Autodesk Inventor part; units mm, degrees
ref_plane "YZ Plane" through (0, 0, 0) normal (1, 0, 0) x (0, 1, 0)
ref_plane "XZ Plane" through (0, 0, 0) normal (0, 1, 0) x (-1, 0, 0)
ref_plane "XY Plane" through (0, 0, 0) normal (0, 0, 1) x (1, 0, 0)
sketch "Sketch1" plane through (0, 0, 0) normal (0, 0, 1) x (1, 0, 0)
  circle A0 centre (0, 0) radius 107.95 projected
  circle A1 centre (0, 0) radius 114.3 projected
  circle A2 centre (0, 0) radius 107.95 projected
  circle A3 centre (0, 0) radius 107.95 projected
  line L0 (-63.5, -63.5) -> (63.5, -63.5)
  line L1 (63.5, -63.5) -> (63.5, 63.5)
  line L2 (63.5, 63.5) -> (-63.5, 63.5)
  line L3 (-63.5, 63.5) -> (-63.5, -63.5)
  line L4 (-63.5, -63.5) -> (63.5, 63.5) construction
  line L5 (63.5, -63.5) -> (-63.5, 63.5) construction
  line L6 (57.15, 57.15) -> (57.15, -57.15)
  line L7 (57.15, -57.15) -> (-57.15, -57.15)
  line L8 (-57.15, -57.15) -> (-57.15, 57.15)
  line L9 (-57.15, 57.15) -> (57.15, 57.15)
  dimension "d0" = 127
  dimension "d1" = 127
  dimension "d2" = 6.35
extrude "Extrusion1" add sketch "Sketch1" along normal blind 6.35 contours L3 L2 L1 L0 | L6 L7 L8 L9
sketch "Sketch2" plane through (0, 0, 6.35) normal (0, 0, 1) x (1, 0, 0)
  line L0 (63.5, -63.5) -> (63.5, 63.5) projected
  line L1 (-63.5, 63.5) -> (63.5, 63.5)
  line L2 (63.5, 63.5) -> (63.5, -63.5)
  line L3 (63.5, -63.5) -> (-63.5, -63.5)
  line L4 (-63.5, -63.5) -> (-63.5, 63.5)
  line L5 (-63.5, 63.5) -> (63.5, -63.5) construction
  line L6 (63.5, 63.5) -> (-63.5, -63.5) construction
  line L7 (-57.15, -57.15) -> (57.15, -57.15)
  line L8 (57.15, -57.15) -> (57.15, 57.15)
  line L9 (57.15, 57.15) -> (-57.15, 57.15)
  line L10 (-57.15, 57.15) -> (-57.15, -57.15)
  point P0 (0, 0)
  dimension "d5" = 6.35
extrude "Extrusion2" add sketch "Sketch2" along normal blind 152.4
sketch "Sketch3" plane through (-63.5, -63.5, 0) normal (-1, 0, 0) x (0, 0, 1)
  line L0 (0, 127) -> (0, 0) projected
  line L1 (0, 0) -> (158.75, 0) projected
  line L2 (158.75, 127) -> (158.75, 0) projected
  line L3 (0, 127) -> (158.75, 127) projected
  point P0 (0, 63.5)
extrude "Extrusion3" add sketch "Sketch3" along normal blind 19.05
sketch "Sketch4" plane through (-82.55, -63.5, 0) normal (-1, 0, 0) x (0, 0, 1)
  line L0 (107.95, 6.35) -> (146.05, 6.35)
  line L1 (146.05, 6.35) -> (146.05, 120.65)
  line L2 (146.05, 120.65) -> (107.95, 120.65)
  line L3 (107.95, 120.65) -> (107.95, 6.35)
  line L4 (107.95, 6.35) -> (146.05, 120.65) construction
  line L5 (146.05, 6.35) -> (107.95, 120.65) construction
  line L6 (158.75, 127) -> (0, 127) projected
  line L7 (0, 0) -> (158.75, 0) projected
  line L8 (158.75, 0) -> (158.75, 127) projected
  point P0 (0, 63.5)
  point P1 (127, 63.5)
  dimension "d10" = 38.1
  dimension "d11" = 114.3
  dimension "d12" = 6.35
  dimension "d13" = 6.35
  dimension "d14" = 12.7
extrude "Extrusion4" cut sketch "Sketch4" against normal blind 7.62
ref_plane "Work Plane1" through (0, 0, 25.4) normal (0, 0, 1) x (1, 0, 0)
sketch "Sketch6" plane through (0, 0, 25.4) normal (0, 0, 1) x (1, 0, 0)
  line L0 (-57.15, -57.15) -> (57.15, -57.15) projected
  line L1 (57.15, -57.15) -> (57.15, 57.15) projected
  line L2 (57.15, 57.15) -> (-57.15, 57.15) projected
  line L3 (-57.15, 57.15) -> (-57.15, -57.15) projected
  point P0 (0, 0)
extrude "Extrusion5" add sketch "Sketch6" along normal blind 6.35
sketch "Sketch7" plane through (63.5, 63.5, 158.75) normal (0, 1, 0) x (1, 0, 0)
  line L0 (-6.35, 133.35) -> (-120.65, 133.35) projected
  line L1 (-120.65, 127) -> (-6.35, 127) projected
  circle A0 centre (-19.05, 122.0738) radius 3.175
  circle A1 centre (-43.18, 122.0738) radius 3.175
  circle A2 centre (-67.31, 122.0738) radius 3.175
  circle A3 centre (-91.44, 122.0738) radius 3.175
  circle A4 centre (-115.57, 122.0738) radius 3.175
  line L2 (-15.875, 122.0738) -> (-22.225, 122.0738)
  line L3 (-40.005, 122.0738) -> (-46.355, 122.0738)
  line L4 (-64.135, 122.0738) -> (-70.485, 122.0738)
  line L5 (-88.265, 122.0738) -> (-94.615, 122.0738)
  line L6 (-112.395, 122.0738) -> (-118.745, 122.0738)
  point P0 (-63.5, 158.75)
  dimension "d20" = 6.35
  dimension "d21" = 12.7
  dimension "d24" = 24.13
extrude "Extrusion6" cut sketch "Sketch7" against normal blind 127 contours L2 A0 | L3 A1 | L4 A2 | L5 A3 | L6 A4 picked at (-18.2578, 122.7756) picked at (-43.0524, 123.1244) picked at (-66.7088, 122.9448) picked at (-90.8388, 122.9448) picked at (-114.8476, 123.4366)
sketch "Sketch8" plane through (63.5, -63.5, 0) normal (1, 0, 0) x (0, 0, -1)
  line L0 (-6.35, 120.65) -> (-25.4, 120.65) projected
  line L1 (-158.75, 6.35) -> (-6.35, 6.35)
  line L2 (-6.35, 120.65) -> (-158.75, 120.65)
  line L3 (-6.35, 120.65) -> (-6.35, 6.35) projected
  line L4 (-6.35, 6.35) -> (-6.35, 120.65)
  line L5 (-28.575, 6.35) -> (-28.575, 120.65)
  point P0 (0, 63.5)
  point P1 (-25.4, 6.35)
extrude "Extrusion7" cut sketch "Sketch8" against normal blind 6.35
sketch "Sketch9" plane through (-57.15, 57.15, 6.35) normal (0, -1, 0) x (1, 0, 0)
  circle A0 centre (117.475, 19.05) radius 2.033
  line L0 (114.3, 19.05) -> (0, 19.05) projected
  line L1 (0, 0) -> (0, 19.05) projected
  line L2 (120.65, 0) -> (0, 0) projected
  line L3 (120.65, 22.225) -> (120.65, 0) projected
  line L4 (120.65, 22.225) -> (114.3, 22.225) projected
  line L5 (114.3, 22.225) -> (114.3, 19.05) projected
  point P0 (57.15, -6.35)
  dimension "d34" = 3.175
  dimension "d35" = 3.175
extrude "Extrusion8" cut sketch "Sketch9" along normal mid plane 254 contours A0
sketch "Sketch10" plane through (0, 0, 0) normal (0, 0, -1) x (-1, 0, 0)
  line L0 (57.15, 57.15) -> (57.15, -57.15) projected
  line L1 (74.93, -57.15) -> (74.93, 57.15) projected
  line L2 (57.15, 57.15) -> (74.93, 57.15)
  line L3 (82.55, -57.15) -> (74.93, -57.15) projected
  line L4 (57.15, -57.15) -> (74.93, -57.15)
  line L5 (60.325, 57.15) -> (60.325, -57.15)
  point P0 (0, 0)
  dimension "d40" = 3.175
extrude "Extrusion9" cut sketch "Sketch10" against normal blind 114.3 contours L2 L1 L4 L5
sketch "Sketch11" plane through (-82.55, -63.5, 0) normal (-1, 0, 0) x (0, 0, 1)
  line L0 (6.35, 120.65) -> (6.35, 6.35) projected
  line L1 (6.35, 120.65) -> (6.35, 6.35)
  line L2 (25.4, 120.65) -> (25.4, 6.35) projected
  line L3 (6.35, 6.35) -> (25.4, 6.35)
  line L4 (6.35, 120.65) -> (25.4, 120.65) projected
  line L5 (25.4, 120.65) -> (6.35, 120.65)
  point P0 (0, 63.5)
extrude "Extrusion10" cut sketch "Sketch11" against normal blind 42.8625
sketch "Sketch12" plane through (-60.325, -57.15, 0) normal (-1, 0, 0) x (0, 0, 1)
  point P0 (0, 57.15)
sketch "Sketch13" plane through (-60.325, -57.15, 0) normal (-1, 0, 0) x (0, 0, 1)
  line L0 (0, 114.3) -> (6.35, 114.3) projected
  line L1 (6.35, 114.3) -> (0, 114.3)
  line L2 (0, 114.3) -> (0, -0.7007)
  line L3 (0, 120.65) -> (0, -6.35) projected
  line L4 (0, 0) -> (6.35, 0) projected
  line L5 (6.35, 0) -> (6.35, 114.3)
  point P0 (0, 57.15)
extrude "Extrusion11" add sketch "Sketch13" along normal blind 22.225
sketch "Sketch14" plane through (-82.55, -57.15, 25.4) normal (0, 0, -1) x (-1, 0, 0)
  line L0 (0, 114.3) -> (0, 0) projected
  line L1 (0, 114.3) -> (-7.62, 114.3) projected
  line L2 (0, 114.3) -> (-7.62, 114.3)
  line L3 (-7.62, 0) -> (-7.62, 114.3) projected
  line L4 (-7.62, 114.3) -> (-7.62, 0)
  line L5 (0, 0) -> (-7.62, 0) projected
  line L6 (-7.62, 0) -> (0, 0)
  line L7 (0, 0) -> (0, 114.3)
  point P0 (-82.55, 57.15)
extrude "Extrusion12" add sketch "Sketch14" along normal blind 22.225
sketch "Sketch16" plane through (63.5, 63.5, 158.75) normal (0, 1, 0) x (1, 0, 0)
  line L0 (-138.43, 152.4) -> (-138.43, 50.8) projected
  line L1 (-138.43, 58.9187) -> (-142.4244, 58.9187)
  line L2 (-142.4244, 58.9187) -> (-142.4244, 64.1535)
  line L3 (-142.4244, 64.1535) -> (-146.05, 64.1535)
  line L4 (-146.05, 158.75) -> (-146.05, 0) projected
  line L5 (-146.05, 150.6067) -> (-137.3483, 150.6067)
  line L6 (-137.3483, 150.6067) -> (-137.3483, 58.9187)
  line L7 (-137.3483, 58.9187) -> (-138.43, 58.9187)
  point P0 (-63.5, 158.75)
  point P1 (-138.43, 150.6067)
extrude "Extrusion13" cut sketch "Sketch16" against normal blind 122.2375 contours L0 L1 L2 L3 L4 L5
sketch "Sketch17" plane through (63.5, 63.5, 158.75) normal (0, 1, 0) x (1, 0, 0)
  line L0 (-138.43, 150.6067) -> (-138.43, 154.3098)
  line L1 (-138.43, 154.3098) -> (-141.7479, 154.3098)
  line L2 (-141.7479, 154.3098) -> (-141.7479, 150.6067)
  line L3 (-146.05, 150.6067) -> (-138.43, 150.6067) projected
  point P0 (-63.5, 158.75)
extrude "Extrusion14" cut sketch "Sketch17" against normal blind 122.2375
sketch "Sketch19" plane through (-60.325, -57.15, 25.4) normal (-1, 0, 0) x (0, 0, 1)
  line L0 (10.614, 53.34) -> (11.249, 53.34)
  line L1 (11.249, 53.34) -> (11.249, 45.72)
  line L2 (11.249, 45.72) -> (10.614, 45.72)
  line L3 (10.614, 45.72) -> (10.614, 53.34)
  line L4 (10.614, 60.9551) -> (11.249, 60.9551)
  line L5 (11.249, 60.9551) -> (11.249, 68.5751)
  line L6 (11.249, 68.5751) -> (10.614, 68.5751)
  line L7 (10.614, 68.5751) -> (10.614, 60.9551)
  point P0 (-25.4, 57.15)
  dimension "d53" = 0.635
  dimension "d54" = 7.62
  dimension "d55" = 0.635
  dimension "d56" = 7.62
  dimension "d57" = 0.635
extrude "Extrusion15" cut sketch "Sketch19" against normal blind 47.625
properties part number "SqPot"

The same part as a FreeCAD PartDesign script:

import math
import FreeCAD as App
import Part
import Sketcher

V = App.Vector
Q = App.Units.Quantity


def add_polygon(sketch, points):
    """Adds a closed chain of lines whose ends are joined by coincident constraints."""
    first, n = sketch.GeometryCount, len(points)
    for a, b in zip(points, points[1:] + points[:1]):
        sketch.addGeometry(Part.LineSegment(App.Vector(*a, 0), App.Vector(*b, 0)), False)
    for i in range(n):
        sketch.addConstraint(Sketcher.Constraint("Coincident", first + i, 2, first + (i + 1) % n, 1))

doc = App.newDocument("Part")
body = doc.addObject("PartDesign::Body", "Body")

# Sketch on XY plane
sketch1 = body.newObject("Sketcher::SketchObject", "Sketch")
sketch1.AttachmentSupport = (doc.getObject("XY_Plane"), [""])
sketch1.MapMode = "FlatFace"
add_polygon(sketch1, [(-64, 64), (-64, -64), (64, -64), (64, 64)])  # lines 0-3
sketch1.addConstraint([
    Sketcher.Constraint("Vertical", 0),
    Sketcher.Constraint("Horizontal", 1),
    Sketcher.Constraint("Vertical", 2),
    Sketcher.Constraint("Horizontal", 3),
    Sketcher.Constraint("Symmetric", 0, 2, 2, 2, -1, 1),
    Sketcher.Constraint("Equal", 3, 0),
    Sketcher.Constraint("DistanceX", 1, 1, 1, 2, Q("5 in")),
])
pad1 = body.newObject("PartDesign::Pad", "Pad")
pad1.Profile = sketch1
pad1.Length = Q("0.25 in")

# Sketch on XY plane
sketch2 = body.newObject("Sketcher::SketchObject", "Sketch001")
sketch2.AttachmentSupport = (doc.getObject("XY_Plane"), [""])
sketch2.MapMode = "FlatFace"
sketch2.AttachmentOffset = App.Placement(V(0, 0, 0.25 * 25.4), App.Rotation())
add_polygon(sketch2, [(-64, -64), (64, -64), (64, 64), (-64, 64)])  # lines 0-3
add_polygon(sketch2, [(57, -57), (-57, -57), (-57, 57), (57, 57)])  # lines 4-7
sketch2.addConstraint([
    Sketcher.Constraint("Horizontal", 0),
    Sketcher.Constraint("Vertical", 1),
    Sketcher.Constraint("Horizontal", 2),
    Sketcher.Constraint("Vertical", 3),
    Sketcher.Constraint("Horizontal", 4),
    Sketcher.Constraint("Vertical", 5),
    Sketcher.Constraint("Horizontal", 6),
    Sketcher.Constraint("Vertical", 7),
    Sketcher.Constraint("Symmetric", 0, 2, 2, 2, -1, 1),
    Sketcher.Constraint("Symmetric", 4, 2, 6, 2, -1, 1),
    Sketcher.Constraint("Equal", 2, 1),
    Sketcher.Constraint("Equal", 6, 5),
    Sketcher.Constraint("DistanceX", 0, 1, 0, 2, Q("5 in")),
    Sketcher.Constraint("DistanceX", 3, 2, 4, 2, Q("0.25 in")),
])
pad2 = body.newObject("PartDesign::Pad", "Pad001")
pad2.Profile = sketch2
pad2.Length = Q("6 in")

# Sketch on YZ plane
sketch3 = body.newObject("Sketcher::SketchObject", "Sketch002")
sketch3.AttachmentSupport = (doc.getObject("YZ_Plane"), [""])
sketch3.MapMode = "FlatFace"
sketch3.AttachmentOffset = App.Placement(V(0, 0, -2.5 * 25.4), App.Rotation())
add_polygon(sketch3, [(64, 159), (64, 0), (-64, 0), (-64, 159)])  # lines 0-3
sketch3.addConstraint([
    Sketcher.Constraint("Vertical", 0),
    Sketcher.Constraint("Horizontal", 1),
    Sketcher.Constraint("Vertical", 2),
    Sketcher.Constraint("Horizontal", 3),
    Sketcher.Constraint("Symmetric", 0, 2, 1, 2, -1, 1),
    Sketcher.Constraint("DistanceX", 1, 2, 1, 1, Q("5 in")),
    Sketcher.Constraint("DistanceY", 0, 2, 0, 1, Q("6.25 in")),
])
pad3 = body.newObject("PartDesign::Pad", "Pad002")
pad3.Profile = sketch3
pad3.Length = Q("0.75 in")
pad3.Reversed = True

# Sketch on YZ plane
sketch4 = body.newObject("Sketcher::SketchObject", "Sketch003")
sketch4.AttachmentSupport = (doc.getObject("YZ_Plane"), [""])
sketch4.MapMode = "FlatFace"
sketch4.AttachmentOffset = App.Placement(V(0, 0, -3.25 * 25.4), App.Rotation())
add_polygon(sketch4, [(57, 108), (-57, 108), (-57, 146), (57, 146)])  # lines 0-3
sketch4.addConstraint([
    Sketcher.Constraint("Horizontal", 0),
    Sketcher.Constraint("Vertical", 1),
    Sketcher.Constraint("Horizontal", 2),
    Sketcher.Constraint("Vertical", 3),
    Sketcher.Constraint("DistanceX", 0, 2, 0, 1, Q("4.5 in")),
    Sketcher.Constraint("DistanceY", 1, 1, 1, 2, Q("1.5 in")),
    Sketcher.Constraint("DistanceX", 0, 2, -1, 1, Q("2.25 in")),
    Sketcher.Constraint("DistanceY", -1, 1, 0, 2, Q("4.25 in")),
])
pocket1 = body.newObject("PartDesign::Pocket", "Pocket")
pocket1.Profile = sketch4
pocket1.Length = Q("0.3 in")
pocket1.Reversed = True

# Sketch on XY plane
sketch5 = body.newObject("Sketcher::SketchObject", "Sketch004")
sketch5.AttachmentSupport = (doc.getObject("XY_Plane"), [""])
sketch5.MapMode = "FlatFace"
sketch5.AttachmentOffset = App.Placement(V(0, 0, 1 * 25.4), App.Rotation())
add_polygon(sketch5, [(-57, 57), (-57, -57), (57, -57), (57, 57)])  # lines 0-3
sketch5.addConstraint([
    Sketcher.Constraint("Vertical", 0),
    Sketcher.Constraint("Horizontal", 1),
    Sketcher.Constraint("Vertical", 2),
    Sketcher.Constraint("Horizontal", 3),
    Sketcher.Constraint("Symmetric", 0, 2, 2, 2, -1, 1),
    Sketcher.Constraint("Equal", 3, 0),
    Sketcher.Constraint("DistanceX", 1, 1, 1, 2, Q("4.5 in")),
])
pad4 = body.newObject("PartDesign::Pad", "Pad003")
pad4.Profile = sketch5
pad4.Length = Q("0.25 in")

# Sketch on XZ plane
sketch6 = body.newObject("Sketcher::SketchObject", "Sketch005")
sketch6.AttachmentSupport = (doc.getObject("XZ_Plane"), [""])
sketch6.MapMode = "FlatFace"
sketch6.AttachmentOffset = App.Placement(V(0, 0, -2.5 * 25.4), App.Rotation())
sketch6.addGeometry([
    Part.LineSegment(V(41.3, 36.7, 0), V(47.6, 36.7, 0)),  # 0
    Part.ArcOfCircle(Part.Circle(V(44.5, 36.7, 0), V(0, 0, 1), 3.2), math.radians(180), math.radians(360)),  # 1
    Part.LineSegment(V(17.1, 36.7, 0), V(23.5, 36.7, 0)),  # 2
    Part.ArcOfCircle(Part.Circle(V(20.3, 36.7, 0), V(0, 0, 1), 3.2), math.radians(180), math.radians(360)),  # 3
    Part.LineSegment(V(-7, 36.7, 0), V(-0.6, 36.7, 0)),  # 4
    Part.ArcOfCircle(Part.Circle(V(-3.8, 36.7, 0), V(0, 0, 1), 3.2), math.radians(180), math.radians(360)),  # 5
    Part.LineSegment(V(-31.1, 36.7, 0), V(-24.8, 36.7, 0)),  # 6
    Part.ArcOfCircle(Part.Circle(V(-27.9, 36.7, 0), V(0, 0, 1), 3.2), math.radians(180), math.radians(360)),  # 7
    Part.LineSegment(V(-55.2, 36.7, 0), V(-48.9, 36.7, 0)),  # 8
    Part.ArcOfCircle(Part.Circle(V(-52.1, 36.7, 0), V(0, 0, 1), 3.2), math.radians(180), math.radians(360)),  # 9
], False)
sketch6.addConstraint([
    Sketcher.Constraint("Coincident", 0, 1, 1, 1),
    Sketcher.Constraint("Coincident", 1, 2, 0, 2),
    Sketcher.Constraint("Coincident", 2, 1, 3, 1),
    Sketcher.Constraint("Coincident", 3, 2, 2, 2),
    Sketcher.Constraint("Coincident", 4, 1, 5, 1),
    Sketcher.Constraint("Coincident", 5, 2, 4, 2),
    Sketcher.Constraint("Coincident", 6, 1, 7, 1),
    Sketcher.Constraint("Coincident", 7, 2, 6, 2),
    Sketcher.Constraint("Coincident", 8, 1, 9, 1),
    Sketcher.Constraint("Coincident", 9, 2, 8, 2),
    Sketcher.Constraint("Horizontal", 0),
    Sketcher.Constraint("Horizontal", 2),
    Sketcher.Constraint("Horizontal", 4),
    Sketcher.Constraint("Horizontal", 6),
    Sketcher.Constraint("Horizontal", 8),
    Sketcher.Constraint("Equal", 1, 3),
    Sketcher.Constraint("Equal", 3, 5),
    Sketcher.Constraint("Equal", 5, 7),
    Sketcher.Constraint("Equal", 7, 9),
    Sketcher.Constraint("Horizontal", 1, 3, 3, 3),
    Sketcher.Constraint("Horizontal", 3, 3, 5, 3),
    Sketcher.Constraint("Horizontal", 5, 3, 7, 3),
    Sketcher.Constraint("Horizontal", 7, 3, 9, 3),
    Sketcher.Constraint("Horizontal", 9, 3, 0, 1),
    Sketcher.Constraint("Horizontal", 1, 2, 2, 1),
    Sketcher.Constraint("Horizontal", 3, 2, 4, 1),
    Sketcher.Constraint("Horizontal", 5, 2, 6, 1),
    Sketcher.Constraint("Horizontal", 7, 2, 8, 1),
    Sketcher.Constraint("Radius", 1, Q("0.125 in")),
    Sketcher.Constraint("DistanceX", 3, 3, 1, 3, Q("0.95 in")),
    Sketcher.Constraint("DistanceX", 5, 3, 3, 3, Q("0.95 in")),
    Sketcher.Constraint("DistanceX", 7, 3, 5, 3, Q("0.95 in")),
    Sketcher.Constraint("DistanceX", 9, 3, 7, 3, Q("0.95 in")),
    Sketcher.Constraint("DistanceX", -1, 1, 3, 3, Q("0.8 in")),
    Sketcher.Constraint("DistanceY", -1, 1, 1, 3, 36.6762),
])
pocket2 = body.newObject("PartDesign::Pocket", "Pocket001")
pocket2.Profile = sketch6
pocket2.Length = Q("5 in")
pocket2.Reversed = True

# Sketch on YZ plane
sketch7 = body.newObject("Sketcher::SketchObject", "Sketch006")
sketch7.AttachmentSupport = (doc.getObject("YZ_Plane"), [""])
sketch7.MapMode = "FlatFace"
sketch7.AttachmentOffset = App.Placement(V(0, 0, 2.5 * 25.4), App.Rotation())
add_polygon(sketch7, [(-57, 6), (57, 6), (57, 29), (-57, 29)])  # lines 0-3
sketch7.addConstraint([
    Sketcher.Constraint("Horizontal", 0),
    Sketcher.Constraint("Vertical", 1),
    Sketcher.Constraint("Horizontal", 2),
    Sketcher.Constraint("Vertical", 3),
    Sketcher.Constraint("DistanceX", 0, 1, 0, 2, Q("4.5 in")),
    Sketcher.Constraint("DistanceY", 1, 1, 1, 2, Q("0.875 in")),
    Sketcher.Constraint("DistanceX", -1, 1, 0, 2, Q("2.25 in")),
    Sketcher.Constraint("DistanceY", -1, 1, 0, 2, Q("0.25 in")),
])
pocket3 = body.newObject("PartDesign::Pocket", "Pocket002")
pocket3.Profile = sketch7
pocket3.Length = Q("0.25 in")

# Sketch on XZ plane
sketch8 = body.newObject("Sketcher::SketchObject", "Sketch007")
sketch8.AttachmentSupport = (doc.getObject("XZ_Plane"), [""])
sketch8.MapMode = "FlatFace"
sketch8.AttachmentOffset = App.Placement(V(0, 0, -2.25 * 25.4), App.Rotation())
sketch8.addGeometry(Part.Circle(V(60.3, 25.4, 0), V(0, 0, 1), 2), False)
sketch8.addConstraint([
    Sketcher.Constraint("DistanceY", -1, 1, 0, 3, Q("1 in")),
    Sketcher.Constraint("Diameter", 0, 4.066),
    Sketcher.Constraint("DistanceX", -1, 1, 0, 3, Q("2.375 in")),
])
pocket4 = body.newObject("PartDesign::Pocket", "Pocket003")
pocket4.Profile = sketch8
pocket4.Length = Q("10 in")
pocket4.Midplane = True

# Sketch on XY plane
sketch9 = body.newObject("Sketcher::SketchObject", "Sketch008")
sketch9.AttachmentSupport = (doc.getObject("XY_Plane"), [""])
sketch9.MapMode = "FlatFace"
add_polygon(sketch9, [(-75, 57), (-60, 57), (-60, -57), (-75, -57)])  # lines 0-3
sketch9.addConstraint([
    Sketcher.Constraint("Horizontal", 0),
    Sketcher.Constraint("Vertical", 1),
    Sketcher.Constraint("Horizontal", 2),
    Sketcher.Constraint("Vertical", 3),
    Sketcher.Constraint("DistanceY", 1, 2, 1, 1, Q("4.5 in")),
    Sketcher.Constraint("DistanceX", 0, 1, 0, 2, Q("0.575 in")),
    Sketcher.Constraint("DistanceY", -1, 1, 0, 2, Q("2.25 in")),
    Sketcher.Constraint("DistanceX", 2, 2, -1, 1, Q("2.95 in")),
])
pocket5 = body.newObject("PartDesign::Pocket", "Pocket004")
pocket5.Profile = sketch9
pocket5.Length = Q("4.5 in")
pocket5.Reversed = True

# Sketch on YZ plane
sketch10 = body.newObject("Sketcher::SketchObject", "Sketch009")
sketch10.AttachmentSupport = (doc.getObject("YZ_Plane"), [""])
sketch10.MapMode = "FlatFace"
sketch10.AttachmentOffset = App.Placement(V(0, 0, -3.25 * 25.4), App.Rotation())
add_polygon(sketch10, [(57, 25), (57, 6), (-57, 6), (-57, 25)])  # lines 0-3
sketch10.addConstraint([
    Sketcher.Constraint("Vertical", 0),
    Sketcher.Constraint("Horizontal", 1),
    Sketcher.Constraint("Vertical", 2),
    Sketcher.Constraint("Horizontal", 3),
    Sketcher.Constraint("DistanceX", 1, 2, 1, 1, Q("4.5 in")),
    Sketcher.Constraint("DistanceY", -1, 1, 2, 2, Q("1 in")),
    Sketcher.Constraint("DistanceY", 0, 2, 0, 1, Q("0.75 in")),
    Sketcher.Constraint("DistanceX", -1, 1, 0, 2, Q("2.25 in")),
])
pocket6 = body.newObject("PartDesign::Pocket", "Pocket005")
pocket6.Profile = sketch10
pocket6.Length = Q("1.6875 in")
pocket6.Reversed = True

# Sketch on YZ plane
sketch11 = body.newObject("Sketcher::SketchObject", "Sketch010")
sketch11.AttachmentSupport = (doc.getObject("YZ_Plane"), [""])
sketch11.MapMode = "FlatFace"
sketch11.AttachmentOffset = App.Placement(V(0, 0, -2.375 * 25.4), App.Rotation())
add_polygon(sketch11, [(57, 6), (57, 0), (-57, 0), (-57, 6)])  # lines 0-3
sketch11.addConstraint([
    Sketcher.Constraint("Vertical", 0),
    Sketcher.Constraint("Horizontal", 1),
    Sketcher.Constraint("Vertical", 2),
    Sketcher.Constraint("Horizontal", 3),
    Sketcher.Constraint("Symmetric", 0, 2, 1, 2, -1, 1),
    Sketcher.Constraint("DistanceX", 1, 2, 1, 1, Q("4.5 in")),
    Sketcher.Constraint("DistanceY", 0, 2, 0, 1, Q("0.25 in")),
])
pad5 = body.newObject("PartDesign::Pad", "Pad004")
pad5.Profile = sketch11
pad5.Length = Q("0.875 in")
pad5.Reversed = True

# Sketch on XY plane
sketch12 = body.newObject("Sketcher::SketchObject", "Sketch011")
sketch12.AttachmentSupport = (doc.getObject("XY_Plane"), [""])
sketch12.MapMode = "FlatFace"
sketch12.AttachmentOffset = App.Placement(V(0, 0, 1 * 25.4), App.Rotation())
add_polygon(sketch12, [(-83, -57), (-83, 57), (-75, 57), (-75, -57)])  # lines 0-3
sketch12.addConstraint([
    Sketcher.Constraint("Vertical", 0),
    Sketcher.Constraint("Horizontal", 1),
    Sketcher.Constraint("Vertical", 2),
    Sketcher.Constraint("Horizontal", 3),
    Sketcher.Constraint("DistanceX", 1, 1, 1, 2, Q("0.3 in")),
    Sketcher.Constraint("DistanceY", 0, 1, 0, 2, Q("4.5 in")),
    Sketcher.Constraint("DistanceX", 0, 2, -1, 1, Q("3.25 in")),
    Sketcher.Constraint("DistanceY", -1, 1, 0, 2, Q("2.25 in")),
])
pad6 = body.newObject("PartDesign::Pad", "Pad005")
pad6.Profile = sketch12
pad6.Length = Q("0.875 in")
pad6.Reversed = True

# Sketch on XZ plane
sketch13 = body.newObject("Sketcher::SketchObject", "Sketch012")
sketch13.AttachmentSupport = (doc.getObject("XZ_Plane"), [""])
sketch13.MapMode = "FlatFace"
sketch13.AttachmentOffset = App.Placement(V(0, 0, -2.5 * 25.4), App.Rotation())
add_polygon(sketch13, [(-74.9, 99.8), (-74.9, 8.1), (-82.5, 8.1), (-82.5, 94.6), (-78.9, 94.6), (-78.9, 99.8)])  # lines 0-5
sketch13.addConstraint([
    Sketcher.Constraint("Vertical", 0),
    Sketcher.Constraint("Horizontal", 1),
    Sketcher.Constraint("Vertical", 2),
    Sketcher.Constraint("Horizontal", 3),
    Sketcher.Constraint("Vertical", 4),
    Sketcher.Constraint("Horizontal", 5),
    Sketcher.Constraint("DistanceX", 1, 2, 1, 1, Q("0.3 in")),
    Sketcher.Constraint("DistanceX", 0, 2, -1, 1, Q("2.95 in")),
    Sketcher.Constraint("DistanceY", 4, 1, 4, 2, Q("0.2061 in")),
    Sketcher.Constraint("DistanceX", 3, 1, 3, 2, 3.6256),
    Sketcher.Constraint("DistanceY", 0, 2, 0, 1, 91.688),
    Sketcher.Constraint("DistanceY", -1, 1, 0, 2, Q("0.3206 in")),
])
pocket7 = body.newObject("PartDesign::Pocket", "Pocket006")
pocket7.Profile = sketch13
pocket7.Length = Q("4.8125 in")
pocket7.Reversed = True

# Sketch on XZ plane
sketch14 = body.newObject("Sketcher::SketchObject", "Sketch013")
sketch14.AttachmentSupport = (doc.getObject("XZ_Plane"), [""])
sketch14.MapMode = "FlatFace"
sketch14.AttachmentOffset = App.Placement(V(0, 0, -2.5 * 25.4), App.Rotation())
add_polygon(sketch14, [(-78.2, 8.1), (-74.9, 8.1), (-74.9, 4.4), (-78.2, 4.4)])  # lines 0-3
sketch14.addConstraint([
    Sketcher.Constraint("Horizontal", 0),
    Sketcher.Constraint("Vertical", 1),
    Sketcher.Constraint("Horizontal", 2),
    Sketcher.Constraint("Vertical", 3),
    Sketcher.Constraint("DistanceX", 0, 2, -1, 1, Q("2.95 in")),
    Sketcher.Constraint("DistanceY", 1, 2, 1, 1, Q("0.1458 in")),
    Sketcher.Constraint("DistanceX", 0, 1, 0, 2, 3.318),
    Sketcher.Constraint("DistanceY", -1, 1, 0, 2, Q("0.3206 in")),
])
pocket8 = body.newObject("PartDesign::Pocket", "Pocket007")
pocket8.Profile = sketch14
pocket8.Length = Q("4.8125 in")
pocket8.Reversed = True

# Sketch on YZ plane
sketch15 = body.newObject("Sketcher::SketchObject", "Sketch014")
sketch15.AttachmentSupport = (doc.getObject("YZ_Plane"), [""])
sketch15.MapMode = "FlatFace"
sketch15.AttachmentOffset = App.Placement(V(0, 0, -2.375 * 25.4), App.Rotation())
add_polygon(sketch15, [(-3.8, 36.6), (-3.8, 36), (-11.4, 36), (-11.4, 36.6)])  # lines 0-3
add_polygon(sketch15, [(11.4, 36), (3.8, 36), (3.8, 36.6), (11.4, 36.6)])  # lines 4-7
sketch15.addConstraint([
    Sketcher.Constraint("Vertical", 0),
    Sketcher.Constraint("Horizontal", 1),
    Sketcher.Constraint("Vertical", 2),
    Sketcher.Constraint("Horizontal", 3),
    Sketcher.Constraint("Horizontal", 4),
    Sketcher.Constraint("Vertical", 5),
    Sketcher.Constraint("Horizontal", 6),
    Sketcher.Constraint("Vertical", 7),
    Sketcher.Constraint("Horizontal", 1, 2, 4, 2),
    Sketcher.Constraint("Horizontal", 3, 2, 5, 2),
    Sketcher.Constraint("Equal", 3, 4),
    Sketcher.Constraint("DistanceX", 1, 2, 1, 1, Q("0.3 in")),
    Sketcher.Constraint("DistanceY", 0, 2, 0, 1, Q("0.025 in")),
    Sketcher.Constraint("DistanceX", 0, 2, -1, 1, Q("0.15 in")),
    Sketcher.Constraint("DistanceX", -1, 1, 4, 2, Q("0.1498 in")),
    Sketcher.Constraint("DistanceY", -1, 1, 0, 2, 36.014),
])
pocket9 = body.newObject("PartDesign::Pocket", "Pocket008")
pocket9.Profile = sketch15
pocket9.Length = Q("1.875 in")
pocket9.Reversed = True

doc.recompute()
